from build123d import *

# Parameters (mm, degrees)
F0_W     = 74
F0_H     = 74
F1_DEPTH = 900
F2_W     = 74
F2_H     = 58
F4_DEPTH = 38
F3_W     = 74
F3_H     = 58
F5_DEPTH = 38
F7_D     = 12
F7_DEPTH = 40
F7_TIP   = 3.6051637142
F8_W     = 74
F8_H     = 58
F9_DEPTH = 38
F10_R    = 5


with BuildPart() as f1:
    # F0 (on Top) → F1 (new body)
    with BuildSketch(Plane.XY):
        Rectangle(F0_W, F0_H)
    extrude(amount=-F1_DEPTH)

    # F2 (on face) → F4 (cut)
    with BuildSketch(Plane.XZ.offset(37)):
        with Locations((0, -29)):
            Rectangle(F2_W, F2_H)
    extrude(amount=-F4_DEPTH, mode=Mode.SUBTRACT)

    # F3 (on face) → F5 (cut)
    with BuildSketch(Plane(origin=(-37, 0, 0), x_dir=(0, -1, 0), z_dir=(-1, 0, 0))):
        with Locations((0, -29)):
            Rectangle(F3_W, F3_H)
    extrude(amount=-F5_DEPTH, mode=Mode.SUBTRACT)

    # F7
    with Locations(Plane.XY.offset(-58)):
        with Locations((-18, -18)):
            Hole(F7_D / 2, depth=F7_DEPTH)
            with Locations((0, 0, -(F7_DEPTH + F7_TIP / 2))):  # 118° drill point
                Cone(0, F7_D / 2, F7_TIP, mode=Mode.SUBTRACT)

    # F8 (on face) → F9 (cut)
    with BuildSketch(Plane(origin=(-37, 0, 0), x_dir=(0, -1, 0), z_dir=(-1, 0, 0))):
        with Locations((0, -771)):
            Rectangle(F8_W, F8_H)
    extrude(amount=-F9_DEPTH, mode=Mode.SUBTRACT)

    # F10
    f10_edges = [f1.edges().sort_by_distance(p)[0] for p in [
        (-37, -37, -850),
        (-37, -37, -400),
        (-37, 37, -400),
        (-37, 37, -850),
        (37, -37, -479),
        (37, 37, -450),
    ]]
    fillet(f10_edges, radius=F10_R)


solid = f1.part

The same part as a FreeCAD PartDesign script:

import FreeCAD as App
import Part
import Sketcher

V = App.Vector


def edges_at(feature, points):
    """Names of the edges that pass closest to the given points."""
    edges = feature.Shape.Edges
    near = lambda p: min(range(len(edges)), key=lambda i: edges[i].distToShape(Part.Vertex(*p))[0])
    return sorted({f"Edge{near(p) + 1}" for p in points})

doc = App.newDocument("Part")
body = doc.addObject("PartDesign::Body", "Body")

sketch1 = body.newObject("Sketcher::SketchObject", "Sketch")
sketch1.AttachmentSupport = (doc.getObject("XY_Plane"), [""])
sketch1.MapMode = "FlatFace"
sketch1.addGeometry([
    Part.LineSegment(V(-37, 37, 0), V(-37, -37, 0)),
    Part.LineSegment(V(-37, -37, 0), V(37, -37, 0)),
    Part.LineSegment(V(37, -37, 0), V(37, 37, 0)),
    Part.LineSegment(V(37, 37, 0), V(-37, 37, 0)),
], False)
sketch1.addConstraint([
    Sketcher.Constraint("Coincident", 0, 2, 1, 1),
    Sketcher.Constraint("Coincident", 1, 2, 2, 1),
    Sketcher.Constraint("Coincident", 2, 2, 3, 1),
    Sketcher.Constraint("Coincident", 3, 2, 0, 1),
    Sketcher.Constraint("Vertical", 0),
    Sketcher.Constraint("Horizontal", 1),
    Sketcher.Constraint("Vertical", 2),
    Sketcher.Constraint("Horizontal", 3),
    Sketcher.Constraint("Symmetric", 0, 2, 2, 2, -1, 1),
    Sketcher.Constraint("Equal", 3, 0),
    Sketcher.Constraint("DistanceX", 1, 1, 1, 2, 74.0),
])
pad1 = body.newObject("PartDesign::Pad", "Pad")
pad1.Profile = sketch1
pad1.Length = 900
pad1.Reversed = True

sketch2 = body.newObject("Sketcher::SketchObject", "Sketch001")
sketch2.AttachmentSupport = (doc.getObject("XZ_Plane"), [""])
sketch2.MapMode = "FlatFace"
sketch2.AttachmentOffset = App.Placement(V(0, 0, 37), App.Rotation())
sketch2.addGeometry([
    Part.LineSegment(V(-37, 0, 0), V(-37, -58, 0)),
    Part.LineSegment(V(-37, -58, 0), V(37, -58, 0)),
    Part.LineSegment(V(37, -58, 0), V(37, 0, 0)),
    Part.LineSegment(V(37, 0, 0), V(-37, 0, 0)),
], False)
sketch2.addConstraint([
    Sketcher.Constraint("Coincident", 0, 2, 1, 1),
    Sketcher.Constraint("Coincident", 1, 2, 2, 1),
    Sketcher.Constraint("Coincident", 2, 2, 3, 1),
    Sketcher.Constraint("Coincident", 3, 2, 0, 1),
    Sketcher.Constraint("Vertical", 0),
    Sketcher.Constraint("Horizontal", 1),
    Sketcher.Constraint("Vertical", 2),
    Sketcher.Constraint("Horizontal", 3),
    Sketcher.Constraint("Symmetric", 2, 2, 3, 2, -1, 1),
    Sketcher.Constraint("DistanceX", 1, 1, 1, 2, 74.0),
    Sketcher.Constraint("DistanceY", 0, 2, 0, 1, 58.0),
])
pocket1 = body.newObject("PartDesign::Pocket", "Pocket")
pocket1.Profile = sketch2
pocket1.Length = 38

sketch3 = body.newObject("Sketcher::SketchObject", "Sketch002")
sketch3.AttachmentSupport = (doc.getObject("YZ_Plane"), [""])
sketch3.MapMode = "FlatFace"
sketch3.AttachmentOffset = App.Placement(V(0, 0, -37), App.Rotation())
sketch3.addGeometry([
    Part.LineSegment(V(37, 0, 0), V(37, -58, 0)),
    Part.LineSegment(V(37, -58, 0), V(-37, -58, 0)),
    Part.LineSegment(V(-37, -58, 0), V(-37, 0, 0)),
    Part.LineSegment(V(-37, 0, 0), V(37, 0, 0)),
], False)
sketch3.addConstraint([
    Sketcher.Constraint("Coincident", 0, 2, 1, 1),
    Sketcher.Constraint("Coincident", 1, 2, 2, 1),
    Sketcher.Constraint("Coincident", 2, 2, 3, 1),
    Sketcher.Constraint("Coincident", 3, 2, 0, 1),
    Sketcher.Constraint("Vertical", 0),
    Sketcher.Constraint("Horizontal", 1),
    Sketcher.Constraint("Vertical", 2),
    Sketcher.Constraint("Horizontal", 3),
    Sketcher.Constraint("Symmetric", 2, 2, 3, 2, -1, 1),
    Sketcher.Constraint("DistanceX", 1, 2, 1, 1, 74.0),
    Sketcher.Constraint("DistanceY", 0, 2, 0, 1, 58.0),
])
pocket2 = body.newObject("PartDesign::Pocket", "Pocket001")
pocket2.Profile = sketch3
pocket2.Length = 38
pocket2.Reversed = True

sketch4 = body.newObject("Sketcher::SketchObject", "Sketch003")
sketch4.AttachmentSupport = (doc.getObject("XY_Plane"), [""])
sketch4.MapMode = "FlatFace"
sketch4.AttachmentOffset = App.Placement(V(0, 0, -58), App.Rotation())
sketch4.addGeometry(Part.Circle(V(-18, -18, 0), V(0, 0, 1), 6), False)
sketch4.addConstraint([
    Sketcher.Constraint("Diameter", 0, 12.0),
    Sketcher.Constraint("DistanceX", 0, 3, -1, 1, 18.0),
    Sketcher.Constraint("DistanceY", 0, 3, -1, 1, 18.0),
])
doc.recompute()
hole = body.newObject("PartDesign::Hole", "Hole")
hole.Profile = sketch4
hole.ThreadType = "None"
hole.Diameter = 12
hole.DepthType = "Dimension"
hole.Depth = 40
hole.DrillPoint = "Angled"
hole.DrillPointAngle = 118

sketch5 = body.newObject("Sketcher::SketchObject", "Sketch004")
sketch5.AttachmentSupport = (doc.getObject("YZ_Plane"), [""])
sketch5.MapMode = "FlatFace"
sketch5.AttachmentOffset = App.Placement(V(0, 0, -37), App.Rotation())
sketch5.addGeometry([
    Part.LineSegment(V(37, -742, 0), V(37, -800, 0)),
    Part.LineSegment(V(37, -800, 0), V(-37, -800, 0)),
    Part.LineSegment(V(-37, -800, 0), V(-37, -742, 0)),
    Part.LineSegment(V(-37, -742, 0), V(37, -742, 0)),
], False)
sketch5.addConstraint([
    Sketcher.Constraint("Coincident", 0, 2, 1, 1),
    Sketcher.Constraint("Coincident", 1, 2, 2, 1),
    Sketcher.Constraint("Coincident", 2, 2, 3, 1),
    Sketcher.Constraint("Coincident", 3, 2, 0, 1),
    Sketcher.Constraint("Vertical", 0),
    Sketcher.Constraint("Horizontal", 1),
    Sketcher.Constraint("Vertical", 2),
    Sketcher.Constraint("Horizontal", 3),
    Sketcher.Constraint("DistanceX", 1, 2, 1, 1, 74.0),
    Sketcher.Constraint("DistanceY", 0, 2, 0, 1, 58.0),
    Sketcher.Constraint("DistanceX", -1, 1, 0, 2, 37.0),
    Sketcher.Constraint("DistanceY", 0, 2, -1, 1, 800.0),
])
pocket3 = body.newObject("PartDesign::Pocket", "Pocket002")
pocket3.Profile = sketch5
pocket3.Length = 38
pocket3.Reversed = True
doc.recompute()

fillet = body.newObject("PartDesign::Fillet", "Fillet")
fillet.Base = (pocket3, edges_at(pocket3, [
    (-37, -37, -850),
    (-37, -37, -400),
    (-37, 37, -400),
    (-37, 37, -850),
    (37, -37, -479),
    (37, 37, -450),
]))
fillet.Radius = 5

doc.recompute()
